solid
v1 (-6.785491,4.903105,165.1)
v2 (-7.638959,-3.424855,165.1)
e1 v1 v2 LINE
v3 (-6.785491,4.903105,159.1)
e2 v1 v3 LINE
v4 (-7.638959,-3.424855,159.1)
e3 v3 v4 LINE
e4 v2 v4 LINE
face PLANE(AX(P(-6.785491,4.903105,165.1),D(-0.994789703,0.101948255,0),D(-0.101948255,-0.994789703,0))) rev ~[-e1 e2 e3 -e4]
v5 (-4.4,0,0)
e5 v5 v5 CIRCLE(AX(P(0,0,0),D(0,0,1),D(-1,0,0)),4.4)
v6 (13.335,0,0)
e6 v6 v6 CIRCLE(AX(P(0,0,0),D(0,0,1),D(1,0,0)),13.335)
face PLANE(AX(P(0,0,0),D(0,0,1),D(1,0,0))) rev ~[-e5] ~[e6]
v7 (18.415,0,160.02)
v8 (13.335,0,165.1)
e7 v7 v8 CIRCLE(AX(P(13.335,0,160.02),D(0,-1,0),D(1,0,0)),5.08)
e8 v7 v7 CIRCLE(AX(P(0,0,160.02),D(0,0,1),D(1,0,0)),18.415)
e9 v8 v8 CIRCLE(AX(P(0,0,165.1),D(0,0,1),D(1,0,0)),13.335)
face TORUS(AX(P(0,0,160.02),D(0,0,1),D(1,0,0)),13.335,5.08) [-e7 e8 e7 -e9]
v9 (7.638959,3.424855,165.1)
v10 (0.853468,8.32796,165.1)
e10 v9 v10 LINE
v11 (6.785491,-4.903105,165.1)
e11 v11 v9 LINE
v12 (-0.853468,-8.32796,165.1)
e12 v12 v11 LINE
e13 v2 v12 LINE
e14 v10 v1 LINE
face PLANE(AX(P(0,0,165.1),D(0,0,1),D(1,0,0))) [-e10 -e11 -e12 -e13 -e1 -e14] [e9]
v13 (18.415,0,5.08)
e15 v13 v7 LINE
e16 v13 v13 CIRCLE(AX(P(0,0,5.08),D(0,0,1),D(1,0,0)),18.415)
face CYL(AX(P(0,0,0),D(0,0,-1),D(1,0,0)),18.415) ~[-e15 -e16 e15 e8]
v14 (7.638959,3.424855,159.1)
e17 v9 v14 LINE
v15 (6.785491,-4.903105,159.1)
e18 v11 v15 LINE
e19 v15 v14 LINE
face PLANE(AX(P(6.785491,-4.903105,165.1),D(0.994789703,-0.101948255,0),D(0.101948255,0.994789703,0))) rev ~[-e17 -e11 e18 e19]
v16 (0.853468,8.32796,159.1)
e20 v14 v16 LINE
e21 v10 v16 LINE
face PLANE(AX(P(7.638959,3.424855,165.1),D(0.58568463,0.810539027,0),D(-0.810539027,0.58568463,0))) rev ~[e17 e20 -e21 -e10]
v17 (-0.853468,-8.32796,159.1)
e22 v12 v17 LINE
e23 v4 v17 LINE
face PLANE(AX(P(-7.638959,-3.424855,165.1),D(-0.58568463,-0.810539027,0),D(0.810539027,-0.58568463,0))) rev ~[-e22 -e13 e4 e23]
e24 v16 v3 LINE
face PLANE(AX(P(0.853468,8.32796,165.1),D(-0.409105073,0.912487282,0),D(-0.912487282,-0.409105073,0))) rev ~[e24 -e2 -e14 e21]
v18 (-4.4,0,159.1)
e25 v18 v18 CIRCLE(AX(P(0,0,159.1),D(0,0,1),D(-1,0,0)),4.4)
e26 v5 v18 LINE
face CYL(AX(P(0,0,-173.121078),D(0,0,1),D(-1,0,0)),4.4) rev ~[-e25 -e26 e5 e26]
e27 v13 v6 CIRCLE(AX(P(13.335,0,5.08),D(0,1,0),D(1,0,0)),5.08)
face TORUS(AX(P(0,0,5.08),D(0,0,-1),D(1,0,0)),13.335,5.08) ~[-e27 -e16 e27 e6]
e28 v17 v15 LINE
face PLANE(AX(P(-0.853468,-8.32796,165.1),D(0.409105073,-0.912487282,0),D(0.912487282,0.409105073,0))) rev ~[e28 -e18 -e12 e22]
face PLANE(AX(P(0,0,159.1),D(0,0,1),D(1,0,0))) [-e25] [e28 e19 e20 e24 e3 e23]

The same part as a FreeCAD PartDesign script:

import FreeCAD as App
import Part
import Sketcher
Q = App.Units.Quantity


def edges_at(feature, points):
    """Names of the edges that pass closest to the given points."""
    edges = feature.Shape.Edges
    near = lambda p: min(range(len(edges)), key=lambda i: edges[i].distToShape(Part.Vertex(*p))[0])
    return sorted({f"Edge{near(p) + 1}" for p in points})


def add_polygon(sketch, points):
    """Adds a closed chain of lines whose ends are joined by coincident constraints."""
    first, n = sketch.GeometryCount, len(points)
    for a, b in zip(points, points[1:] + points[:1]):
        sketch.addGeometry(Part.LineSegment(App.Vector(*a, 0), App.Vector(*b, 0)), False)
    for i in range(n):
        sketch.addConstraint(Sketcher.Constraint("Coincident", first + i, 2, first + (i + 1) % n, 1))

doc = App.newDocument("Part")
body = doc.addObject("PartDesign::Body", "Body")

# Sketch on XY plane
sketch1 = body.newObject("Sketcher::SketchObject", "Sketch")
sketch1.AttachmentSupport = (doc.getObject("XY_Plane"), [""])
sketch1.MapMode = "FlatFace"
sketch1.addGeometry(Part.Circle(App.Vector(0, 0, 0), App.Vector(0, 0, 1), 18), False)
sketch1.addConstraint([
    Sketcher.Constraint("Coincident", 0, 3, -1, 1),
    Sketcher.Constraint("Diameter", 0, Q("1.45 in")),
])
pad1 = body.newObject("PartDesign::Pad", "Pad")
pad1.Profile = sketch1
pad1.Length = Q("6.5 in")
doc.recompute()

fillet = body.newObject("PartDesign::Fillet", "Fillet")
fillet.Base = (pad1, edges_at(pad1, [(-18.415, 0, 165.1), (-18.415, 0, 0)]))
fillet.Radius = Q("0.2 in")

# Sketch on XY plane
sketch2 = body.newObject("Sketcher::SketchObject", "Sketch001")
sketch2.AttachmentSupport = (doc.getObject("XY_Plane"), [""])
sketch2.MapMode = "FlatFace"
sketch2.addGeometry(Part.Circle(App.Vector(0, 0, 0), App.Vector(0, 0, 1), 4.4), False)
sketch2.addConstraint([
    Sketcher.Constraint("Coincident", 0, 3, -1, 1),
    Sketcher.Constraint("Diameter", 0, Q("8.8 mm")),
])
doc.recompute()
hole = body.newObject("PartDesign::Hole", "Hole")
hole.Profile = sketch2
hole.ThreadType = "None"
hole.Diameter = 8.8
hole.DepthType = "ThroughAll"
hole.Reversed = True

# Sketch on XY plane
sketch3 = body.newObject("Sketcher::SketchObject", "Sketch002")
sketch3.AttachmentSupport = (doc.getObject("XY_Plane"), [""])
sketch3.MapMode = "FlatFace"
sketch3.AttachmentOffset = App.Placement(App.Vector(0, 0, 6.5 * 25.4), App.Rotation())
add_polygon(sketch3, [(0.9, 8.3), (-6.8, 4.9), (-7.6, -3.4), (-0.9, -8.3), (6.8, -4.9), (7.6, 3.4)])  # lines 0-5
sketch3.addGeometry(Part.Circle(App.Vector(0, 0, 0), App.Vector(0, 0, 1), 4.4), False)  # 6
sketch3.addConstraint([
    Sketcher.Constraint("Coincident", 6, 3, -1, 1),
    Sketcher.Constraint("Symmetric", 0, 2, 3, 2, -1, 1),
    Sketcher.Constraint("Symmetric", 1, 2, 4, 2, -1, 1),
    Sketcher.Constraint("Symmetric", 2, 2, 5, 2, -1, 1),
    Sketcher.Constraint("Equal", 0, 1),
    Sketcher.Constraint("Equal", 1, 2),
    Sketcher.Constraint("Diameter", 6, Q("8.8 mm")),
    Sketcher.Constraint("Distance", 0, Q("8.371579 mm")),
    Sketcher.Constraint("DistanceX", 0, 2, -1, 1, Q("6.785491 mm")),
    Sketcher.Constraint("DistanceX", 1, 2, -1, 1, Q("7.638959 mm")),
    Sketcher.Constraint("DistanceY", 2, 2, -1, 1, Q("8.32796 mm")),
])
pocket1 = body.newObject("PartDesign::Pocket", "Pocket")
pocket1.Profile = sketch3
pocket1.Length = 6

doc.recompute()
